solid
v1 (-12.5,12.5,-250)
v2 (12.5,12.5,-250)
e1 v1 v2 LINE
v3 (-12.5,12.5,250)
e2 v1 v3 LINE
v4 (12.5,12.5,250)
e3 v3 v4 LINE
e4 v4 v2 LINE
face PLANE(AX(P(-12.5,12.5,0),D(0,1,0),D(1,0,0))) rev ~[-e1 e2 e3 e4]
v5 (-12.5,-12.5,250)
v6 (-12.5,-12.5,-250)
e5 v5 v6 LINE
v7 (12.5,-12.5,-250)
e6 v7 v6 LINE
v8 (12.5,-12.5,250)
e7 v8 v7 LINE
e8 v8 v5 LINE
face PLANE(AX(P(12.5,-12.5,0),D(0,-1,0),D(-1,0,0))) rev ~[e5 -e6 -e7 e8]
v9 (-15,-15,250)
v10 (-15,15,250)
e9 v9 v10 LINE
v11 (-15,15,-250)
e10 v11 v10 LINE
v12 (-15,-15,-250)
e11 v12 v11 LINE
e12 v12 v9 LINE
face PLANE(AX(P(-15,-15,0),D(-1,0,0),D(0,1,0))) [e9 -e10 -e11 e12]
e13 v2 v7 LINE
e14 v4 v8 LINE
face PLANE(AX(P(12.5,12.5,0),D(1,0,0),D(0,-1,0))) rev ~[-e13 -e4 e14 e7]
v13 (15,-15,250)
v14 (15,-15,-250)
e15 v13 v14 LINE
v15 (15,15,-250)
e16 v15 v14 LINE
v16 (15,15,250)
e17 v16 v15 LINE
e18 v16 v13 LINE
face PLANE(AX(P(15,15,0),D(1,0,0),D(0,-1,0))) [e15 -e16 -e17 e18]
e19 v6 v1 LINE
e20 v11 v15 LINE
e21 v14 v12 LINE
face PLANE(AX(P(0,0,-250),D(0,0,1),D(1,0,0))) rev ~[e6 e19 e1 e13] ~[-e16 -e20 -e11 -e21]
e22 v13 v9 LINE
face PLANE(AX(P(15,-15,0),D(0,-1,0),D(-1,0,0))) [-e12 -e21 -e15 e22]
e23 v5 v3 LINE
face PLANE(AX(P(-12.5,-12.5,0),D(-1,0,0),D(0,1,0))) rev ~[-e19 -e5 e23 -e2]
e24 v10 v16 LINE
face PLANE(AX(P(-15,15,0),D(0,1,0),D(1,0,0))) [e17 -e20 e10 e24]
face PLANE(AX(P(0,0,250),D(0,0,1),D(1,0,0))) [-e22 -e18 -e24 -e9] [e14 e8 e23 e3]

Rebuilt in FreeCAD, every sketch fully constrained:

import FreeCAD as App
import Part
import Sketcher

V = App.Vector


def add_polygon(sketch, points):
    """Adds a closed chain of lines whose ends are joined by coincident constraints."""
    first, n = sketch.GeometryCount, len(points)
    for a, b in zip(points, points[1:] + points[:1]):
        sketch.addGeometry(Part.LineSegment(App.Vector(*a, 0), App.Vector(*b, 0)), False)
    for i in range(n):
        sketch.addConstraint(Sketcher.Constraint("Coincident", first + i, 2, first + (i + 1) % n, 1))

doc = App.newDocument("Part")
params = doc.addObject("Spreadsheet::Sheet", "Params")
for row, (alias, value) in enumerate([
    ("sketch1_width", "30 mm"),
    ("sketch1_width2", "25 mm"),
    ("pad1_length", "500 mm"),
], start=1):
    params.set(f"A{row}", alias)
    params.set(f"B{row}", "=" + value)
    params.setAlias(f"B{row}", alias)

body = doc.addObject("PartDesign::Body", "Body")

# Sketch on XY plane
sketch1 = body.newObject("Sketcher::SketchObject", "Sketch")
sketch1.AttachmentSupport = (doc.getObject("XY_Plane"), [""])
sketch1.MapMode = "FlatFace"
add_polygon(sketch1, [(15, 15), (-15, 15), (-15, -15), (15, -15)])  # lines 0-3
add_polygon(sketch1, [(-12.5, -12.5), (-12.5, 12.5), (12.5, 12.5), (12.5, -12.5)])  # lines 4-7
sketch1.addConstraint([
    Sketcher.Constraint("Horizontal", 0),
    Sketcher.Constraint("Vertical", 1),
    Sketcher.Constraint("Horizontal", 2),
    Sketcher.Constraint("Vertical", 3),
    Sketcher.Constraint("Vertical", 4),
    Sketcher.Constraint("Horizontal", 5),
    Sketcher.Constraint("Vertical", 6),
    Sketcher.Constraint("Horizontal", 7),
    Sketcher.Constraint("Symmetric", 0, 2, 2, 2, -1, 1),
    Sketcher.Constraint("Symmetric", 4, 2, 6, 2, -1, 1),
    Sketcher.Constraint("Equal", 2, 1),
    Sketcher.Constraint("Equal", 7, 4),
    Sketcher.Constraint("DistanceX", 0, 2, 0, 1, 30.0),
    Sketcher.Constraint("DistanceX", 5, 1, 5, 2, 25.0),
])
sketch1.setExpression("Constraints[20]", "Params.sketch1_width")
sketch1.setExpression("Constraints[21]", "Params.sketch1_width2")
pad1 = body.newObject("PartDesign::Pad", "Pad")
pad1.Profile = sketch1
pad1.setExpression("Length", "Params.pad1_length")
pad1.Midplane = True

doc.recompute()
